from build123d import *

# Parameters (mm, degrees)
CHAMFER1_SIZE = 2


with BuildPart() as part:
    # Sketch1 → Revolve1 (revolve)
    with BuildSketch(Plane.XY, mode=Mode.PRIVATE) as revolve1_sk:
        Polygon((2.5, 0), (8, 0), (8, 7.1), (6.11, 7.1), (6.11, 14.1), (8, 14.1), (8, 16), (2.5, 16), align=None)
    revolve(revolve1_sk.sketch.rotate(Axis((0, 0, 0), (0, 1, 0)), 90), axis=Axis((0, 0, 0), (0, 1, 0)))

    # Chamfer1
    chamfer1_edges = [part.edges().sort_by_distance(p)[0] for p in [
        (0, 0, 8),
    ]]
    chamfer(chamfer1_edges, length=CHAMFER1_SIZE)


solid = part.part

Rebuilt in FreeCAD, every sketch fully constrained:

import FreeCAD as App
import Part
import Sketcher
from FreeCAD import Vector


def edges_at(feature, points):
    """Names of the edges that pass closest to the given points."""
    edges = feature.Shape.Edges
    near = lambda p: min(range(len(edges)), key=lambda i: edges[i].distToShape(Part.Vertex(*p))[0])
    return sorted({f"Edge{near(p) + 1}" for p in points})


def add_polygon(sketch, points):
    """Adds a closed chain of lines whose ends are joined by coincident constraints."""
    first, n = sketch.GeometryCount, len(points)
    for a, b in zip(points, points[1:] + points[:1]):
        sketch.addGeometry(Part.LineSegment(App.Vector(*a, 0), App.Vector(*b, 0)), False)
    for i in range(n):
        sketch.addConstraint(Sketcher.Constraint("Coincident", first + i, 2, first + (i + 1) % n, 1))

doc = App.newDocument("Part")
params = doc.addObject("Spreadsheet::Sheet", "Params")
for row, (alias, value) in enumerate([
    ("sketch1_height", "7 mm"),
    ("sketch1_height2", "16 mm"),
    ("sketch1_width", "5.5 mm"),
    ("sketch1_height3", "7.1 mm"),
    ("sketch1_width2", "1.89 mm"),
    ("revolution_angle", "360 deg"),
    ("chamfer_size", "2 mm"),
], start=1):
    params.set(f"A{row}", alias)
    params.set(f"B{row}", "=" + value)
    params.setAlias(f"B{row}", alias)

body = doc.addObject("PartDesign::Body", "Body")

# Sketch on XY plane
sketch1 = body.newObject("Sketcher::SketchObject", "Sketch")
sketch1.AttachmentSupport = (doc.getObject("XY_Plane"), [""])
sketch1.MapMode = "FlatFace"
add_polygon(sketch1, [(2.5, 0), (8, 0), (8, 7.1), (6.1, 7.1), (6.1, 14.1), (8, 14.1), (8, 16), (2.5, 16)])  # lines 0-7
sketch1.addConstraint(Sketcher.Constraint("Horizontal", 0))
sketch1.addConstraint(Sketcher.Constraint("Vertical", 1))
sketch1.addConstraint(Sketcher.Constraint("Horizontal", 2))
sketch1.addConstraint(Sketcher.Constraint("Vertical", 3))
sketch1.addConstraint(Sketcher.Constraint("Horizontal", 4))
sketch1.addConstraint(Sketcher.Constraint("Vertical", 5))
sketch1.addConstraint(Sketcher.Constraint("Horizontal", 6))
sketch1.addConstraint(Sketcher.Constraint("Vertical", 7))
sketch1.addConstraint(Sketcher.Constraint("PointOnObject", 0, 2, -1))
sketch1.addConstraint(Sketcher.Constraint("Vertical", 1, 2, 4, 2))
sketch1.addConstraint(Sketcher.Constraint("DistanceY", 3, 1, 3, 2, 7.0))
sketch1.addConstraint(Sketcher.Constraint("DistanceY", 7, 2, 7, 1, 16.0))
sketch1.addConstraint(Sketcher.Constraint("DistanceX", 0, 1, 0, 2, 5.5))
sketch1.addConstraint(Sketcher.Constraint("DistanceY", 1, 1, 1, 2, 7.1))
sketch1.addConstraint(Sketcher.Constraint("DistanceX", -1, 1, 0, 2, 8.0))
sketch1.addConstraint(Sketcher.Constraint("DistanceX", 2, 2, 2, 1, 1.89))
sketch1.setExpression("Constraints[18]", "Params.sketch1_height")
sketch1.setExpression("Constraints[19]", "Params.sketch1_height2")
sketch1.setExpression("Constraints[20]", "Params.sketch1_width")
sketch1.setExpression("Constraints[21]", "Params.sketch1_height3")
sketch1.setExpression("Constraints[23]", "Params.sketch1_width2")
revolution = body.newObject("PartDesign::Revolution", "Revolution")
revolution.Profile = sketch1
revolution.ReferenceAxis = (sketch1, ["V_Axis"])
revolution.setExpression("Angle", "Params.revolution_angle")
doc.recompute()

chamfer = body.newObject("PartDesign::Chamfer", "Chamfer")
chamfer.Base = (revolution, edges_at(revolution, [(0, 0, 8)]))
chamfer.setExpression("Size", "Params.chamfer_size")

doc.recompute()
